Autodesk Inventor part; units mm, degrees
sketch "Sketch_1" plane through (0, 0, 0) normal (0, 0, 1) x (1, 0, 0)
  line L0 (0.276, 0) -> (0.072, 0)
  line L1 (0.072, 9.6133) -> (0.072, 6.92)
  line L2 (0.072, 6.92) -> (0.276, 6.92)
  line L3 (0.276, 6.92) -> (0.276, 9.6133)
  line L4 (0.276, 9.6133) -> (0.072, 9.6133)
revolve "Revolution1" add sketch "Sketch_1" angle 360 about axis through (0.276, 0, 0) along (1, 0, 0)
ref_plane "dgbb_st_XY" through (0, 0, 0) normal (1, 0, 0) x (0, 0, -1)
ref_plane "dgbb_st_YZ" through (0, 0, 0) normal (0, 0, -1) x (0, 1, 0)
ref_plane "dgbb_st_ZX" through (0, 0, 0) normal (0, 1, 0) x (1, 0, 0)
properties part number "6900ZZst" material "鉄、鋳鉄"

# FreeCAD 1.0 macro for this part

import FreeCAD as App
import Part
import Sketcher
Q = App.Units.Quantity

doc = App.newDocument("Part")
params = doc.addObject("Spreadsheet::Sheet", "Params")
for row, (alias, value) in enumerate([
    ("revolution_angle", "360 deg"),
], start=1):
    params.set(f"A{row}", alias)
    params.set(f"B{row}", "=" + value)
    params.setAlias(f"B{row}", alias)

body = doc.addObject("PartDesign::Body", "Body")

sketch1 = body.newObject("Sketcher::SketchObject", "Sketch")
sketch1.AttachmentSupport = (doc.getObject("XY_Plane"), [""])
sketch1.MapMode = "FlatFace"
sketch1.addGeometry([
    Part.LineSegment(App.Vector(0.28, 9.61, 0), App.Vector(0.07, 9.61, 0)),
    Part.LineSegment(App.Vector(0.07, 9.61, 0), App.Vector(0.07, 6.92, 0)),
    Part.LineSegment(App.Vector(0.07, 6.92, 0), App.Vector(0.28, 6.92, 0)),
    Part.LineSegment(App.Vector(0.28, 6.92, 0), App.Vector(0.28, 9.61, 0)),
], False)
sketch1.addConstraint([
    Sketcher.Constraint("Coincident", 0, 2, 1, 1),
    Sketcher.Constraint("Coincident", 1, 2, 2, 1),
    Sketcher.Constraint("Coincident", 2, 2, 3, 1),
    Sketcher.Constraint("Coincident", 3, 2, 0, 1),
    Sketcher.Constraint("Horizontal", 0),
    Sketcher.Constraint("Vertical", 1),
    Sketcher.Constraint("Horizontal", 2),
    Sketcher.Constraint("Vertical", 3),
    Sketcher.Constraint("DistanceX", 0, 2, 0, 1, Q("0.204 mm")),
    Sketcher.Constraint("DistanceY", -1, 1, 1, 2, Q("6.92 mm")),
    Sketcher.Constraint("DistanceY", 1, 2, 1, 1, Q("2.6933 mm")),
    Sketcher.Constraint("DistanceX", -1, 1, 0, 2, Q("0.072 mm")),
])
revolution = body.newObject("PartDesign::Revolution", "Revolution")
revolution.Profile = sketch1
revolution.ReferenceAxis = (sketch1, ["H_Axis"])
revolution.setExpression("Angle", "Params.revolution_angle")

doc.recompute()
